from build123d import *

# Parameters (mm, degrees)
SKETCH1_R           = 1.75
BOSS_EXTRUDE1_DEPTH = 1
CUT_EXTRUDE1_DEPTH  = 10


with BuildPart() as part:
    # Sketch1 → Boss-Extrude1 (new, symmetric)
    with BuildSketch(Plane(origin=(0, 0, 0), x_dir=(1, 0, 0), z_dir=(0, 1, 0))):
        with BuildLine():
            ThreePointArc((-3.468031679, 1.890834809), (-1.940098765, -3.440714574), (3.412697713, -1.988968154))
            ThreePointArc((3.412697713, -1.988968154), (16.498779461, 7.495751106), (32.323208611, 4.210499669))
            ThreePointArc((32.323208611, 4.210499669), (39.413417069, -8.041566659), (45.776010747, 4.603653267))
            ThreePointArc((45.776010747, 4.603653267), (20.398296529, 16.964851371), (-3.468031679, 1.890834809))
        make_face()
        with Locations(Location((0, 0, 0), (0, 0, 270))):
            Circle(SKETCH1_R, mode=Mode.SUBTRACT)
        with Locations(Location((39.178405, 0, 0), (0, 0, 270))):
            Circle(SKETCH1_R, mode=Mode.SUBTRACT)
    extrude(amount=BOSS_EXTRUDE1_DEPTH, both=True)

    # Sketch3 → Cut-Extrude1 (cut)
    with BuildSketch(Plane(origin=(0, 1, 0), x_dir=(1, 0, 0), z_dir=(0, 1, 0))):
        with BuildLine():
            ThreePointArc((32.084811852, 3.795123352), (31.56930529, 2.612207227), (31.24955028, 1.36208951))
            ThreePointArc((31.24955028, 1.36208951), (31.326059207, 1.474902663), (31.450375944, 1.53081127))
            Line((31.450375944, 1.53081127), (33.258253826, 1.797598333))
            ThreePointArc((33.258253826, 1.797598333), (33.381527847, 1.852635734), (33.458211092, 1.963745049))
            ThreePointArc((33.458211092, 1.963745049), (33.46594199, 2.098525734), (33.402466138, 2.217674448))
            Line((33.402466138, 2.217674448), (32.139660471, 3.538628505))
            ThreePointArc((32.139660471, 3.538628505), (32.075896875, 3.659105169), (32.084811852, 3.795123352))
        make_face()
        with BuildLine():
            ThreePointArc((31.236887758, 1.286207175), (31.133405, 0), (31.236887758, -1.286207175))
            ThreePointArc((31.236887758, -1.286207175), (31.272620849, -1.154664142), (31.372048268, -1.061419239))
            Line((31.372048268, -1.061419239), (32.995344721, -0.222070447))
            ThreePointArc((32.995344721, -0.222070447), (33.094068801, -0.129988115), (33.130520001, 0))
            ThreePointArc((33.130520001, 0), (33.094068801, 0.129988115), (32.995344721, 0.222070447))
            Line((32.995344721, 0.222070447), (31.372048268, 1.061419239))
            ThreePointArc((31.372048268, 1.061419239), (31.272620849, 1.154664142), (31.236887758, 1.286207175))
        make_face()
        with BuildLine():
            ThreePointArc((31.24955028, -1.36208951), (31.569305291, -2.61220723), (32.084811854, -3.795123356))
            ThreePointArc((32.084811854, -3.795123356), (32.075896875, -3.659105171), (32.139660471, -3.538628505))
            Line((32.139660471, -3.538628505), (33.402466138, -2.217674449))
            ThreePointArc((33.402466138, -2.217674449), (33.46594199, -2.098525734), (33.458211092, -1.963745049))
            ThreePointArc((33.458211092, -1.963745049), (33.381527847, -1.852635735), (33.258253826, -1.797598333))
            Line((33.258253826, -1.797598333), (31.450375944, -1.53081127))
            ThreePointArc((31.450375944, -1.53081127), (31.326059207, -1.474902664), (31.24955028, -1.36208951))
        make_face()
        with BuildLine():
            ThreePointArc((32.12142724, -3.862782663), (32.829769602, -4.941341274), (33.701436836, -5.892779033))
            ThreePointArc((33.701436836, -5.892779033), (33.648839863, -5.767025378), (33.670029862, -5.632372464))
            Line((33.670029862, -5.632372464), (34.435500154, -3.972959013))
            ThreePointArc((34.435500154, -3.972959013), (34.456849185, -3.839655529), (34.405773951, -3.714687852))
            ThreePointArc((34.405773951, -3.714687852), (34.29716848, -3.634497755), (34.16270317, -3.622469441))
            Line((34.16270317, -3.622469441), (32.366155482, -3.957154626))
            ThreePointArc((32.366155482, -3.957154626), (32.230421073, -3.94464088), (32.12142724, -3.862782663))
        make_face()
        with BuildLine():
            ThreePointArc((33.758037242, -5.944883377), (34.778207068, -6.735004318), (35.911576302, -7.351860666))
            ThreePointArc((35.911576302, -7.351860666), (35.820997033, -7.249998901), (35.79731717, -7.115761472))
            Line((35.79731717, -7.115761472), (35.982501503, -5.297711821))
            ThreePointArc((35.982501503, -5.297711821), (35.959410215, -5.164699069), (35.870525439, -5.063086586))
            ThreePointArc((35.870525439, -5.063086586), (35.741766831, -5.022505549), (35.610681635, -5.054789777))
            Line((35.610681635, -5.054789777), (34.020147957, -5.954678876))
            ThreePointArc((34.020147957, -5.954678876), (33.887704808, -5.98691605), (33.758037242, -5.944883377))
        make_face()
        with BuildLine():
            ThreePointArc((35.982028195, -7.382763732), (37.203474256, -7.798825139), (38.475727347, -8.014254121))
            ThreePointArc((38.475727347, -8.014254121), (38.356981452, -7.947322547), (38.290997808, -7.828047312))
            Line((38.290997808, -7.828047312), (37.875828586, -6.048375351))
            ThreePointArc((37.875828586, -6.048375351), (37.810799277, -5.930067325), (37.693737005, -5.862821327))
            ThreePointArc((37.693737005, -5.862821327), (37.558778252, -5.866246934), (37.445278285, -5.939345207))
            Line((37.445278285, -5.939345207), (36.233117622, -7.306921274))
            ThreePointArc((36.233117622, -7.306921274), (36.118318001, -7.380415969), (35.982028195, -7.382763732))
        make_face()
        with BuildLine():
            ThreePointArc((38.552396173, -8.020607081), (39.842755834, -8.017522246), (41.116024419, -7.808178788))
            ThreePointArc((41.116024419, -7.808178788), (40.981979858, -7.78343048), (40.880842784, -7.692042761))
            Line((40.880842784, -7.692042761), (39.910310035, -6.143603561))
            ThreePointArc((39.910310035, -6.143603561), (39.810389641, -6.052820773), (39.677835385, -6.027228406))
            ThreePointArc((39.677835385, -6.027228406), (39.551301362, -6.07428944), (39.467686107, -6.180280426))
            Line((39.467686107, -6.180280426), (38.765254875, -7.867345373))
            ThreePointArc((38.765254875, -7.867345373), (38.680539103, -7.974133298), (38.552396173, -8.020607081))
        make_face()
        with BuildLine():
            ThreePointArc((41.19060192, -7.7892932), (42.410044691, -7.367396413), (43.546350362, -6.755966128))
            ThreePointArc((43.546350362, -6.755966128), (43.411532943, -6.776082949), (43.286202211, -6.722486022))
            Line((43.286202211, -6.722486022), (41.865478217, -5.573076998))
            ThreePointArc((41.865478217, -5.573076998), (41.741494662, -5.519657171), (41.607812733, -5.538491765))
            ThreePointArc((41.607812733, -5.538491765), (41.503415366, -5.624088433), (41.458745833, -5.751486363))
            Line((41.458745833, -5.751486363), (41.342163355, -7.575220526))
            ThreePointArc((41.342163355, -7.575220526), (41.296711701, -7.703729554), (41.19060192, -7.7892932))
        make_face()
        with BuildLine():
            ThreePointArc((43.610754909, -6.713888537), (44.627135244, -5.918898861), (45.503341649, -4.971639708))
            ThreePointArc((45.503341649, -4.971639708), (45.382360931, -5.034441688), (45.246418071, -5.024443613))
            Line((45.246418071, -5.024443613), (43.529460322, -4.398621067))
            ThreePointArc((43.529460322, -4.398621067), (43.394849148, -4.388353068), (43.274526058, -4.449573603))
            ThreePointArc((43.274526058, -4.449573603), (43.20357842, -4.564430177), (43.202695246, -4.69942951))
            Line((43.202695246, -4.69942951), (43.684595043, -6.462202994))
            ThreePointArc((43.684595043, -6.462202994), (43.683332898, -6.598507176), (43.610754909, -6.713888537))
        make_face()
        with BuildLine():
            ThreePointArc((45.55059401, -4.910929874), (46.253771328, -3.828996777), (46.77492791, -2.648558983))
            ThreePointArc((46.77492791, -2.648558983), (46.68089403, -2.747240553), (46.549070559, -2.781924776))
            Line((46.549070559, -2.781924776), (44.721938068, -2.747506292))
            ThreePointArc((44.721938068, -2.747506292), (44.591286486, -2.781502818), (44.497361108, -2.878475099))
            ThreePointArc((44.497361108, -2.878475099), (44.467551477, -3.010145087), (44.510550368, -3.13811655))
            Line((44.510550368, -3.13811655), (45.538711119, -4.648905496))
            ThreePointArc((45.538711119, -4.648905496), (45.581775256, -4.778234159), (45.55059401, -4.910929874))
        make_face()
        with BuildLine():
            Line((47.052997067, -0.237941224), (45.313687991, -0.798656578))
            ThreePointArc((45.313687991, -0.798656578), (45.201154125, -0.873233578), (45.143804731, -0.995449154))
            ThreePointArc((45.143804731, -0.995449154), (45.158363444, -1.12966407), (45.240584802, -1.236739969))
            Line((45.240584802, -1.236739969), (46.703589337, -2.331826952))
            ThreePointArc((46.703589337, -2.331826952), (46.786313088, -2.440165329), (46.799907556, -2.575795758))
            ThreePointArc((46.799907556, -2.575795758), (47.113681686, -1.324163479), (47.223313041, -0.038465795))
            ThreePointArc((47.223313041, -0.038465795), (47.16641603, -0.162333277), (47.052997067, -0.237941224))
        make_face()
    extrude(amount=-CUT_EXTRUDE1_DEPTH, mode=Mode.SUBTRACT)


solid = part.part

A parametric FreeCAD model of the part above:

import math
import FreeCAD as App
import Part
import Sketcher
Q = App.Units.Quantity

doc = App.newDocument("Part")
body = doc.addObject("PartDesign::Body", "Body")

sketch1 = body.newObject("Sketcher::SketchObject", "Sketch")
sketch1.AttachmentSupport = (doc.getObject("XZ_Plane"), [""])
sketch1.MapMode = "FlatFace"
sketch1.addGeometry([
    Part.ArcOfCircle(Part.Circle(App.Vector(0, 0, 0), App.Vector(0, 0, 1), 3.95), math.radians(30.234233), math.radians(208.600033)),
    Part.ArcOfCircle(Part.Circle(App.Vector(20.69218, 12.059693, 0), App.Vector(0, 0, 1), 20), math.radians(-149.765767), math.radians(-54.440263)),
    Part.ArcOfCircle(Part.Circle(App.Vector(39.178405, 0, 0), App.Vector(0, 0, 1), 8.045), math.radians(-34.906424), math.radians(211.558477)),
    Part.ArcOfCircle(Part.Circle(App.Vector(21.993467, 11.991244, 0), App.Vector(0, 0, 1), 29), math.radians(-151.399967), math.radians(-34.906424)),
    Part.Circle(App.Vector(0, 0, 0), App.Vector(0, 0, 1), 1.75),
    Part.Circle(App.Vector(39.178405, 0, 0), App.Vector(0, 0, 1), 1.75),
], False)
sketch1.addConstraint([
    Sketcher.Constraint("Tangent", 0, 1, 1, 1),
    Sketcher.Constraint("Coincident", 1, 2, 2, 2),
    Sketcher.Constraint("Tangent", 2, 1, 3, 2),
    Sketcher.Constraint("Tangent", 3, 1, 0, 2),
    Sketcher.Constraint("Coincident", 0, 3, -1, 1),
    Sketcher.Constraint("Coincident", 4, 3, -1, 1),
    Sketcher.Constraint("Coincident", 5, 3, 2, 3),
    Sketcher.Constraint("Equal", 4, 5),
    Sketcher.Constraint("PointOnObject", 2, 3, -1),
    Sketcher.Constraint("Radius", 1, Q("20 mm")),
    Sketcher.Constraint("Radius", 3, Q("29 mm")),
    Sketcher.Constraint("Diameter", 4, Q("3.5 mm")),
    Sketcher.Constraint("Radius", 0, Q("3.95 mm")),
    Sketcher.Constraint("Radius", 2, Q("8.045 mm")),
    Sketcher.Constraint("DistanceY", 1, 2, -1, 1, Q("4.2105 mm")),
    Sketcher.Constraint("DistanceX", 3, 1, 3, 3, Q("25.461498 mm")),
])
pad1 = body.newObject("PartDesign::Pad", "Pad")
pad1.Profile = sketch1
pad1.Length = 2
pad1.Midplane = True

sketch2 = body.newObject("Sketcher::SketchObject", "Sketch001")
sketch2.AttachmentSupport = (doc.getObject("XZ_Plane"), [""])
sketch2.MapMode = "FlatFace"
sketch2.AttachmentOffset = App.Placement(App.Vector(0, 0, -1), App.Rotation())
sketch2.addGeometry([
    Part.ArcOfCircle(Part.Circle(App.Vector(39.178405, 0, 0), App.Vector(0, 0, 1), 8.045), math.radians(-170.252365), math.radians(-151.852898)),
    Part.ArcOfCircle(Part.Circle(App.Vector(31.486873, -1.28349, 0), App.Vector(0, 0, 1), 0.25), math.radians(-161.675446), math.radians(-98.394507)),
    Part.LineSegment(App.Vector(31.450376, -1.530811, 0), App.Vector(33.258254, -1.797598, 0)),
    Part.ArcOfCircle(Part.Circle(App.Vector(33.221757, -2.04492, 0), App.Vector(0, 0, 1), 0.25), math.radians(18.947368), math.radians(81.605494)),
    Part.ArcOfCircle(Part.Circle(App.Vector(33.221757, -2.04492, 0), App.Vector(0, 0, 1), 0.25), math.radians(-43.710757), math.radians(18.947368)),
    Part.LineSegment(App.Vector(33.402466, -2.217674, 0), App.Vector(32.13966, -3.538629, 0)),
    Part.ArcOfCircle(Part.Circle(App.Vector(32.32037, -3.711383, 0), App.Vector(0, 0, 1), 0.25), math.radians(136.289243), math.radians(199.570182)),
    Part.ArcOfCircle(Part.Circle(App.Vector(39.178405, 0, 0), App.Vector(0, 0, 1), 8.045), math.radians(170.800267), math.radians(189.199733)),
    Part.ArcOfCircle(Part.Circle(App.Vector(31.486873, 1.28349, 0), App.Vector(0, 0, 1), 0.25), math.radians(179.377185), math.radians(242.658125)),
    Part.LineSegment(App.Vector(31.372048, 1.061419, 0), App.Vector(32.995345, 0.22207, 0)),
    Part.ArcOfCircle(Part.Circle(App.Vector(32.88052, 0, 0), App.Vector(0, 0, 1), 0.25), math.radians(0), math.radians(62.658125)),
    Part.ArcOfCircle(Part.Circle(App.Vector(32.88052, 0, 0), App.Vector(0, 0, 1), 0.25), math.radians(-62.658125), math.radians(0)),
    Part.LineSegment(App.Vector(32.995345, -0.22207, 0), App.Vector(31.372048, -1.061419, 0)),
    Part.ArcOfCircle(Part.Circle(App.Vector(31.486873, -1.28349, 0), App.Vector(0, 0, 1), 0.25), math.radians(117.341875), math.radians(180.622815)),
    Part.ArcOfCircle(Part.Circle(App.Vector(39.178405, 0, 0), App.Vector(0, 0, 1), 8.045), math.radians(151.852898), math.radians(170.252365)),
    Part.ArcOfCircle(Part.Circle(App.Vector(32.32037, 3.711383, 0), App.Vector(0, 0, 1), 0.25), math.radians(160.429817), math.radians(223.710756)),
    Part.LineSegment(App.Vector(32.13966, 3.538629, 0), App.Vector(33.402466, 2.217674, 0)),
    Part.ArcOfCircle(Part.Circle(App.Vector(33.221757, 2.04492, 0), App.Vector(0, 0, 1), 0.25), math.radians(-18.947368), math.radians(43.710756)),
    Part.ArcOfCircle(Part.Circle(App.Vector(33.221757, 2.04492, 0), App.Vector(0, 0, 1), 0.25), math.radians(-81.605493), math.radians(-18.947369)),
    Part.LineSegment(App.Vector(33.258254, 1.797598, 0), App.Vector(31.450376, 1.530811, 0)),
    Part.ArcOfCircle(Part.Circle(App.Vector(31.486873, 1.28349, 0), App.Vector(0, 0, 1), 0.25), math.radians(98.394506), math.radians(161.675447)),
    Part.ArcOfCircle(Part.Circle(App.Vector(39.178405, 0, 0), App.Vector(0, 0, 1), 8.045), math.radians(132.90553), math.radians(151.304996)),
    Part.ArcOfCircle(Part.Circle(App.Vector(33.897041, 5.73709, 0), App.Vector(0, 0, 1), 0.25), math.radians(141.482449), math.radians(204.763388)),
    Part.LineSegment(App.Vector(33.67003, 5.632372, 0), App.Vector(34.4355, 3.972959, 0)),
    Part.ArcOfCircle(Part.Circle(App.Vector(34.208489, 3.868241, 0), App.Vector(0, 0, 1), 0.25), math.radians(-37.894737), math.radians(24.763388)),
    Part.ArcOfCircle(Part.Circle(App.Vector(34.208489, 3.868241, 0), App.Vector(0, 0, 1), 0.25), math.radians(-100.552862), math.radians(-37.894737)),
    Part.LineSegment(App.Vector(34.162703, 3.622469, 0), App.Vector(32.366155, 3.957155, 0)),
    Part.ArcOfCircle(Part.Circle(App.Vector(32.32037, 3.711383, 0), App.Vector(0, 0, 1), 0.25), math.radians(79.447138), math.radians(142.728078)),
    Part.ArcOfCircle(Part.Circle(App.Vector(39.178405, 0, 0), App.Vector(0, 0, 1), 8.045), math.radians(113.958161), math.radians(132.357628)),
    Part.ArcOfCircle(Part.Circle(App.Vector(36.04603, 7.141095, 0), App.Vector(0, 0, 1), 0.25), math.radians(122.53508), math.radians(185.81602)),
    Part.LineSegment(App.Vector(35.797317, 7.115761, 0), App.Vector(35.982502, 5.297712, 0)),
    Part.ArcOfCircle(Part.Circle(App.Vector(35.733788, 5.272378, 0), App.Vector(0, 0, 1), 0.25), math.radians(-56.842105), math.radians(5.81602)),
    Part.ArcOfCircle(Part.Circle(App.Vector(35.733788, 5.272378, 0), App.Vector(0, 0, 1), 0.25), math.radians(-119.500231), math.radians(-56.842105)),
    Part.LineSegment(App.Vector(35.610682, 5.05479, 0), App.Vector(34.020148, 5.954679, 0)),
    Part.ArcOfCircle(Part.Circle(App.Vector(33.897041, 5.73709, 0), App.Vector(0, 0, 1), 0.25), math.radians(60.49977), math.radians(123.780709)),
    Part.ArcOfCircle(Part.Circle(App.Vector(39.178405, 0, 0), App.Vector(0, 0, 1), 8.045), math.radians(95.010793), math.radians(113.410259)),
    Part.ArcOfCircle(Part.Circle(App.Vector(38.534461, 7.771251, 0), App.Vector(0, 0, 1), 0.25), math.radians(103.587712), math.radians(166.868652)),
    Part.LineSegment(App.Vector(38.290998, 7.828047, 0), App.Vector(37.875829, 6.048375, 0)),
    Part.ArcOfCircle(Part.Circle(App.Vector(37.632366, 6.105171, 0), App.Vector(0, 0, 1), 0.25), math.radians(-75.789474), math.radians(-13.131348)),
    Part.ArcOfCircle(Part.Circle(App.Vector(37.632366, 6.105171, 0), App.Vector(0, 0, 1), 0.25), math.radians(-138.447599), math.radians(-75.789474)),
    Part.LineSegment(App.Vector(37.445278, 5.939345, 0), App.Vector(36.233118, 7.306921, 0)),
    Part.ArcOfCircle(Part.Circle(App.Vector(36.04603, 7.141095, 0), App.Vector(0, 0, 1), 0.25), math.radians(41.552401), math.radians(104.833341)),
    Part.ArcOfCircle(Part.Circle(App.Vector(39.178405, 0, 0), App.Vector(0, 0, 1), 8.045), math.radians(76.063425), math.radians(94.462891)),
    Part.ArcOfCircle(Part.Circle(App.Vector(41.092673, 7.559272, 0), App.Vector(0, 0, 1), 0.25), math.radians(84.640344), math.radians(147.921283)),
    Part.LineSegment(App.Vector(40.880843, 7.692043, 0), App.Vector(39.91031, 6.143604, 0)),
    Part.ArcOfCircle(Part.Circle(App.Vector(39.69848, 6.276375, 0), App.Vector(0, 0, 1), 0.25), math.radians(-94.736842), math.radians(-32.078717)),
    Part.ArcOfCircle(Part.Circle(App.Vector(39.69848, 6.276375, 0), App.Vector(0, 0, 1), 0.25), math.radians(-157.394967), math.radians(-94.736842)),
    Part.LineSegment(App.Vector(39.467686, 6.18028, 0), App.Vector(38.765255, 7.867345, 0)),
    Part.ArcOfCircle(Part.Circle(App.Vector(38.534461, 7.771251, 0), App.Vector(0, 0, 1), 0.25), math.radians(22.605033), math.radians(85.885972)),
    Part.ArcOfCircle(Part.Circle(App.Vector(39.178405, 0, 0), App.Vector(0, 0, 1), 8.045), math.radians(57.116056), math.radians(75.515523)),
    Part.ArcOfCircle(Part.Circle(App.Vector(43.443444, 6.528128, 0), App.Vector(0, 0, 1), 0.25), math.radians(65.692976), math.radians(128.973915)),
    Part.LineSegment(App.Vector(43.286202, 6.722486, 0), App.Vector(41.865478, 5.573077, 0)),
    Part.ArcOfCircle(Part.Circle(App.Vector(41.708237, 5.767435, 0), App.Vector(0, 0, 1), 0.25), math.radians(-113.68421), math.radians(-51.026086)),
    Part.ArcOfCircle(Part.Circle(App.Vector(41.708237, 5.767435, 0), App.Vector(0, 0, 1), 0.25), math.radians(-176.342335), math.radians(-113.684211)),
    Part.LineSegment(App.Vector(41.458746, 5.751486, 0), App.Vector(41.342163, 7.575221, 0)),
    Part.ArcOfCircle(Part.Circle(App.Vector(41.092673, 7.559272, 0), App.Vector(0, 0, 1), 0.25), math.radians(3.657664), math.radians(66.938604)),
    Part.ArcOfCircle(Part.Circle(App.Vector(39.178405, 0, 0), App.Vector(0, 0, 1), 8.045), math.radians(38.168688), math.radians(56.568154)),
    Part.ArcOfCircle(Part.Circle(App.Vector(45.332032, 4.78956, 0), App.Vector(0, 0, 1), 0.25), math.radians(46.745608), math.radians(110.026546)),
    Part.LineSegment(App.Vector(45.246418, 5.024444, 0), App.Vector(43.52946, 4.398621, 0)),
    Part.ArcOfCircle(Part.Circle(App.Vector(43.443846, 4.633505, 0), App.Vector(0, 0, 1), 0.25), math.radians(-132.631579), math.radians(-69.973454)),
    Part.ArcOfCircle(Part.Circle(App.Vector(43.443846, 4.633505, 0), App.Vector(0, 0, 1), 0.25), math.radians(164.710296), math.radians(227.368421)),
    Part.LineSegment(App.Vector(43.202695, 4.69943, 0), App.Vector(43.684595, 6.462203, 0)),
    Part.ArcOfCircle(Part.Circle(App.Vector(43.443444, 6.528128, 0), App.Vector(0, 0, 1), 0.25), math.radians(-15.289705), math.radians(47.991235)),
    Part.ArcOfCircle(Part.Circle(App.Vector(39.178405, 0, 0), App.Vector(0, 0, 1), 8.045), math.radians(19.22132), math.radians(37.620786)),
    Part.ArcOfCircle(Part.Circle(App.Vector(46.553779, 2.531969, 0), App.Vector(0, 0, 1), 0.25), math.radians(27.79824), math.radians(91.079177)),
    Part.LineSegment(App.Vector(46.549071, 2.781925, 0), App.Vector(44.721938, 2.747506, 0)),
    Part.ArcOfCircle(Part.Circle(App.Vector(44.71723, 2.997462, 0), App.Vector(0, 0, 1), 0.25), math.radians(-151.578947), math.radians(-88.920822)),
    Part.ArcOfCircle(Part.Circle(App.Vector(44.71723, 2.997462, 0), App.Vector(0, 0, 1), 0.25), math.radians(145.762927), math.radians(208.421053)),
    Part.LineSegment(App.Vector(44.51055, 3.138117, 0), App.Vector(45.538711, 4.648905, 0)),
    Part.ArcOfCircle(Part.Circle(App.Vector(45.332032, 4.78956, 0), App.Vector(0, 0, 1), 0.25), math.radians(-34.237073), math.radians(29.043866)),
    Part.LineSegment(App.Vector(47.052997, 0.237941, 0), App.Vector(45.313688, 0.798657, 0)),
    Part.ArcOfCircle(Part.Circle(App.Vector(45.390395, 1.036598, 0), App.Vector(0, 0, 1), 0.25), math.radians(-170.526315), math.radians(-107.86819)),
    Part.ArcOfCircle(Part.Circle(App.Vector(45.390395, 1.036598, 0), App.Vector(0, 0, 1), 0.25), math.radians(126.815559), math.radians(189.473684)),
    Part.LineSegment(App.Vector(45.240585, 1.23674, 0), App.Vector(46.703589, 2.331827, 0)),
    Part.ArcOfCircle(Part.Circle(App.Vector(46.553779, 2.531969, 0), App.Vector(0, 0, 1), 0.25), math.radians(-53.184441), math.radians(10.096498)),
    Part.ArcOfCircle(Part.Circle(App.Vector(39.178405, 0, 0), App.Vector(0, 0, 1), 8.045), math.radians(0.273951), math.radians(18.673417)),
    Part.ArcOfCircle(Part.Circle(App.Vector(46.97629, 0, 0), App.Vector(0, 0, 1), 0.25), math.radians(8.850871), math.radians(72.131809)),
], False)
sketch2.addConstraint([
    Sketcher.Constraint("Coincident", 0, 1, 1, 1),
    Sketcher.Constraint("Tangent", 1, 2, 2, 1),
    Sketcher.Constraint("Tangent", 2, 2, 3, 2),
    Sketcher.Constraint("Tangent", 3, 1, 4, 2),
    Sketcher.Constraint("Tangent", 4, 1, 5, 1),
    Sketcher.Constraint("Tangent", 5, 2, 6, 1),
    Sketcher.Constraint("Coincident", 6, 2, 0, 2),
    Sketcher.Constraint("Coincident", 7, 1, 8, 1),
    Sketcher.Constraint("Tangent", 8, 2, 9, 1),
    Sketcher.Constraint("Tangent", 9, 2, 10, 2),
    Sketcher.Constraint("Tangent", 10, 1, 11, 2),
    Sketcher.Constraint("Tangent", 11, 1, 12, 1),
    Sketcher.Constraint("Tangent", 12, 2, 13, 1),
    Sketcher.Constraint("Coincident", 13, 2, 7, 2),
    Sketcher.Constraint("Coincident", 14, 1, 15, 1),
    Sketcher.Constraint("Tangent", 15, 2, 16, 1),
    Sketcher.Constraint("Tangent", 16, 2, 17, 2),
    Sketcher.Constraint("Tangent", 17, 1, 18, 2),
    Sketcher.Constraint("Tangent", 18, 1, 19, 1),
    Sketcher.Constraint("Tangent", 19, 2, 20, 1),
    Sketcher.Constraint("Coincident", 20, 2, 14, 2),
    Sketcher.Constraint("Coincident", 21, 1, 22, 1),
    Sketcher.Constraint("Tangent", 22, 2, 23, 1),
    Sketcher.Constraint("Tangent", 23, 2, 24, 2),
    Sketcher.Constraint("Tangent", 24, 1, 25, 2),
    Sketcher.Constraint("Tangent", 25, 1, 26, 1),
    Sketcher.Constraint("Tangent", 26, 2, 27, 1),
    Sketcher.Constraint("Coincident", 27, 2, 21, 2),
    Sketcher.Constraint("Coincident", 28, 1, 29, 1),
    Sketcher.Constraint("Tangent", 29, 2, 30, 1),
    Sketcher.Constraint("Tangent", 30, 2, 31, 2),
    Sketcher.Constraint("Tangent", 31, 1, 32, 2),
    Sketcher.Constraint("Tangent", 32, 1, 33, 1),
    Sketcher.Constraint("Tangent", 33, 2, 34, 1),
    Sketcher.Constraint("Coincident", 34, 2, 28, 2),
    Sketcher.Constraint("Coincident", 35, 1, 36, 1),
    Sketcher.Constraint("Tangent", 36, 2, 37, 1),
    Sketcher.Constraint("Tangent", 37, 2, 38, 2),
    Sketcher.Constraint("Tangent", 38, 1, 39, 2),
    Sketcher.Constraint("Tangent", 39, 1, 40, 1),
    Sketcher.Constraint("Tangent", 40, 2, 41, 1),
    Sketcher.Constraint("Coincident", 41, 2, 35, 2),
    Sketcher.Constraint("Coincident", 42, 1, 43, 1),
    Sketcher.Constraint("Tangent", 43, 2, 44, 1),
    Sketcher.Constraint("Tangent", 44, 2, 45, 2),
    Sketcher.Constraint("Tangent", 45, 1, 46, 2),
    Sketcher.Constraint("Tangent", 46, 1, 47, 1),
    Sketcher.Constraint("Tangent", 47, 2, 48, 1),
    Sketcher.Constraint("Coincident", 48, 2, 42, 2),
    Sketcher.Constraint("Coincident", 49, 1, 50, 1),
    Sketcher.Constraint("Tangent", 50, 2, 51, 1),
    Sketcher.Constraint("Tangent", 51, 2, 52, 2),
    Sketcher.Constraint("Tangent", 52, 1, 53, 2),
    Sketcher.Constraint("Tangent", 53, 1, 54, 1),
    Sketcher.Constraint("Tangent", 54, 2, 55, 1),
    Sketcher.Constraint("Coincident", 55, 2, 49, 2),
    Sketcher.Constraint("Coincident", 56, 1, 57, 1),
    Sketcher.Constraint("Tangent", 57, 2, 58, 1),
    Sketcher.Constraint("Tangent", 58, 2, 59, 2),
    Sketcher.Constraint("Tangent", 59, 1, 60, 2),
    Sketcher.Constraint("Tangent", 60, 1, 61, 1),
    Sketcher.Constraint("Tangent", 61, 2, 62, 1),
    Sketcher.Constraint("Coincident", 62, 2, 56, 2),
    Sketcher.Constraint("Coincident", 63, 1, 64, 1),
    Sketcher.Constraint("Tangent", 64, 2, 65, 1),
    Sketcher.Constraint("Tangent", 65, 2, 66, 2),
    Sketcher.Constraint("Tangent", 66, 1, 67, 2),
    Sketcher.Constraint("Tangent", 67, 1, 68, 1),
    Sketcher.Constraint("Tangent", 68, 2, 69, 1),
    Sketcher.Constraint("Coincident", 69, 2, 63, 2),
    Sketcher.Constraint("Tangent", 70, 2, 71, 2),
    Sketcher.Constraint("Tangent", 71, 1, 72, 2),
    Sketcher.Constraint("Tangent", 72, 1, 73, 1),
    Sketcher.Constraint("Tangent", 73, 2, 74, 1),
    Sketcher.Constraint("Coincident", 74, 2, 75, 2),
    Sketcher.Constraint("Coincident", 75, 1, 76, 1),
    Sketcher.Constraint("Tangent", 76, 2, 70, 1),
    Sketcher.Constraint("Coincident", 7, 3, 0, 3),
    Sketcher.Constraint("Coincident", 13, 3, 1, 3),
    Sketcher.Constraint("Coincident", 14, 3, 0, 3),
    Sketcher.Constraint("Coincident", 20, 3, 8, 3),
    Sketcher.Constraint("Coincident", 21, 3, 0, 3),
    Sketcher.Constraint("Coincident", 27, 3, 15, 3),
    Sketcher.Constraint("Coincident", 28, 3, 0, 3),
    Sketcher.Constraint("Coincident", 34, 3, 22, 3),
    Sketcher.Constraint("Coincident", 35, 3, 0, 3),
    Sketcher.Constraint("Coincident", 41, 3, 29, 3),
    Sketcher.Constraint("Coincident", 42, 3, 0, 3),
    Sketcher.Constraint("Coincident", 48, 3, 36, 3),
    Sketcher.Constraint("Coincident", 49, 3, 0, 3),
    Sketcher.Constraint("Coincident", 55, 3, 43, 3),
    Sketcher.Constraint("Coincident", 56, 3, 0, 3),
    Sketcher.Constraint("Coincident", 62, 3, 50, 3),
    Sketcher.Constraint("Coincident", 63, 3, 0, 3),
    Sketcher.Constraint("Coincident", 69, 3, 57, 3),
    Sketcher.Constraint("Coincident", 74, 3, 64, 3),
    Sketcher.Constraint("Coincident", 75, 3, 0, 3),
    Sketcher.Constraint("Equal", 1, 3),
    Sketcher.Constraint("Equal", 3, 4),
    Sketcher.Constraint("Equal", 4, 6),
    Sketcher.Constraint("Equal", 0, 7),
    Sketcher.Constraint("Equal", 6, 8),
    Sketcher.Constraint("Equal", 8, 10),
    Sketcher.Constraint("Equal", 10, 11),
    Sketcher.Constraint("Equal", 11, 13),
    Sketcher.Constraint("Equal", 7, 14),
    Sketcher.Constraint("Equal", 13, 15),
    Sketcher.Constraint("Equal", 15, 17),
    Sketcher.Constraint("Equal", 17, 18),
    Sketcher.Constraint("Equal", 18, 20),
    Sketcher.Constraint("Equal", 14, 21),
    Sketcher.Constraint("Equal", 20, 22),
    Sketcher.Constraint("Equal", 22, 24),
    Sketcher.Constraint("Equal", 24, 25),
    Sketcher.Constraint("Equal", 25, 27),
    Sketcher.Constraint("Equal", 21, 28),
    Sketcher.Constraint("Equal", 27, 29),
    Sketcher.Constraint("Equal", 29, 31),
    Sketcher.Constraint("Equal", 31, 32),
    Sketcher.Constraint("Equal", 32, 34),
    Sketcher.Constraint("Equal", 28, 35),
    Sketcher.Constraint("Equal", 34, 36),
    Sketcher.Constraint("Equal", 36, 38),
    Sketcher.Constraint("Equal", 38, 39),
    Sketcher.Constraint("Equal", 39, 41),
    Sketcher.Constraint("Equal", 35, 42),
    Sketcher.Constraint("Equal", 41, 43),
    Sketcher.Constraint("Equal", 43, 45),
    Sketcher.Constraint("Equal", 45, 46),
    Sketcher.Constraint("Equal", 46, 48),
    Sketcher.Constraint("Equal", 42, 49),
    Sketcher.Constraint("Equal", 48, 50),
    Sketcher.Constraint("Equal", 50, 52),
    Sketcher.Constraint("Equal", 52, 53),
    Sketcher.Constraint("Equal", 53, 55),
    Sketcher.Constraint("Equal", 49, 56),
    Sketcher.Constraint("Equal", 55, 57),
    Sketcher.Constraint("Equal", 57, 59),
    Sketcher.Constraint("Equal", 59, 60),
    Sketcher.Constraint("Equal", 60, 62),
    Sketcher.Constraint("Equal", 56, 63),
    Sketcher.Constraint("Equal", 62, 64),
    Sketcher.Constraint("Equal", 64, 66),
    Sketcher.Constraint("Equal", 66, 67),
    Sketcher.Constraint("Equal", 67, 69),
    Sketcher.Constraint("Equal", 69, 71),
    Sketcher.Constraint("Equal", 71, 72),
    Sketcher.Constraint("Equal", 72, 74),
    Sketcher.Constraint("Equal", 63, 75),
    Sketcher.Constraint("Equal", 74, 76),
    Sketcher.Constraint("Symmetric", 1, 3, 8, 3, -1),
    Sketcher.Constraint("Symmetric", 6, 3, 15, 3, -1),
    Sketcher.Constraint("Symmetric", 3, 3, 17, 3, -1),
    Sketcher.Constraint("PointOnObject", 0, 3, -1),
    Sketcher.Constraint("PointOnObject", 10, 3, -1),
    Sketcher.Constraint("PointOnObject", 76, 3, -1),
    Sketcher.Constraint("PointOnObject", 10, 1, -1),
    Sketcher.Constraint("Vertical", 3, 1, 17, 1),
    Sketcher.Constraint("Equal", 2, 5),
    Sketcher.Constraint("Equal", 5, 9),
    Sketcher.Constraint("Equal", 19, 23),
    Sketcher.Constraint("Equal", 23, 26),
    Sketcher.Constraint("Equal", 26, 30),
    Sketcher.Constraint("Equal", 30, 33),
    Sketcher.Constraint("Equal", 33, 37),
    Sketcher.Constraint("Equal", 37, 40),
    Sketcher.Constraint("Equal", 40, 44),
    Sketcher.Constraint("Equal", 44, 47),
    Sketcher.Constraint("Equal", 47, 51),
    Sketcher.Constraint("Equal", 51, 54),
    Sketcher.Constraint("Equal", 54, 58),
    Sketcher.Constraint("Equal", 58, 61),
    Sketcher.Constraint("Equal", 61, 65),
    Sketcher.Constraint("Equal", 65, 68),
    Sketcher.Constraint("Equal", 68, 70),
    Sketcher.Constraint("Equal", 70, 73),
    Sketcher.Constraint("Radius", 1, Q("0.25 mm")),
    Sketcher.Constraint("Radius", 0, Q("8.045 mm")),
    Sketcher.Constraint("DistanceY", 2, 2, -1, 1, Q("1.797598 mm")),
    Sketcher.Constraint("DistanceX", -1, 1, 23, 2, Q("34.4355 mm")),
    Sketcher.Constraint("DistanceX", -1, 1, 30, 2, Q("35.982502 mm")),
    Sketcher.Constraint("DistanceX", -1, 1, 55, 2, Q("41.190602 mm")),
    Sketcher.Constraint("DistanceY", 1, 3, -1, 1, Q("1.28349 mm")),
    Sketcher.Constraint("DistanceX", -1, 1, 6, 3, Q("32.32037 mm")),
    Sketcher.Constraint("DistanceX", -1, 1, 10, 3, Q("32.88052 mm")),
    Sketcher.Constraint("DistanceX", -1, 1, 22, 3, Q("33.897041 mm")),
    Sketcher.Constraint("DistanceY", -1, 1, 22, 3, Q("5.73709 mm")),
    Sketcher.Constraint("DistanceX", -1, 1, 29, 3, Q("36.04603 mm")),
    Sketcher.Constraint("DistanceX", -1, 1, 36, 3, Q("38.534461 mm")),
    Sketcher.Constraint("DistanceY", -1, 1, 36, 3, Q("7.771251 mm")),
    Sketcher.Constraint("DistanceY", -1, 1, 43, 3, Q("7.559272 mm")),
    Sketcher.Constraint("DistanceX", -1, 1, 45, 3, Q("39.69848 mm")),
    Sketcher.Constraint("DistanceX", -1, 1, 57, 3, Q("45.332032 mm")),
    Sketcher.Constraint("DistanceY", -1, 1, 57, 3, Q("4.78956 mm")),
    Sketcher.Constraint("DistanceX", -1, 1, 64, 3, Q("46.553779 mm")),
    Sketcher.Constraint("DistanceY", -1, 1, 64, 3, Q("2.531969 mm")),
    Sketcher.Constraint("DistanceX", -1, 1, 76, 3, Q("46.97629 mm")),
    Sketcher.Constraint("DistanceX", -1, 1, 3, 1, Q("33.458211 mm")),
    Sketcher.Constraint("DistanceY", -1, 1, 38, 1, Q("5.862821 mm")),
    Sketcher.Constraint("DistanceY", -1, 1, 45, 1, Q("6.027228 mm")),
    Sketcher.Constraint("DistanceX", -1, 1, 49, 1, Q("43.54635 mm")),
    Sketcher.Constraint("DistanceX", -1, 1, 51, 2, Q("41.865478 mm")),
    Sketcher.Constraint("DistanceY", -1, 1, 52, 1, Q("5.538492 mm")),
    Sketcher.Constraint("DistanceX", -1, 1, 66, 1, Q("44.497361 mm")),
    Sketcher.Constraint("DistanceY", -1, 1, 71, 1, Q("0.995449 mm")),
    Sketcher.Constraint("DistanceX", -1, 1, 24, 1, Q("34.405774 mm")),
    Sketcher.Constraint("DistanceX", -1, 1, 31, 1, Q("35.870525 mm")),
    Sketcher.Constraint("DistanceX", -1, 1, 59, 1, Q("43.274526 mm")),
])
pocket1 = body.newObject("PartDesign::Pocket", "Pocket")
pocket1.Profile = sketch2
pocket1.Length = 10
pocket1.Reversed = True

doc.recompute()
